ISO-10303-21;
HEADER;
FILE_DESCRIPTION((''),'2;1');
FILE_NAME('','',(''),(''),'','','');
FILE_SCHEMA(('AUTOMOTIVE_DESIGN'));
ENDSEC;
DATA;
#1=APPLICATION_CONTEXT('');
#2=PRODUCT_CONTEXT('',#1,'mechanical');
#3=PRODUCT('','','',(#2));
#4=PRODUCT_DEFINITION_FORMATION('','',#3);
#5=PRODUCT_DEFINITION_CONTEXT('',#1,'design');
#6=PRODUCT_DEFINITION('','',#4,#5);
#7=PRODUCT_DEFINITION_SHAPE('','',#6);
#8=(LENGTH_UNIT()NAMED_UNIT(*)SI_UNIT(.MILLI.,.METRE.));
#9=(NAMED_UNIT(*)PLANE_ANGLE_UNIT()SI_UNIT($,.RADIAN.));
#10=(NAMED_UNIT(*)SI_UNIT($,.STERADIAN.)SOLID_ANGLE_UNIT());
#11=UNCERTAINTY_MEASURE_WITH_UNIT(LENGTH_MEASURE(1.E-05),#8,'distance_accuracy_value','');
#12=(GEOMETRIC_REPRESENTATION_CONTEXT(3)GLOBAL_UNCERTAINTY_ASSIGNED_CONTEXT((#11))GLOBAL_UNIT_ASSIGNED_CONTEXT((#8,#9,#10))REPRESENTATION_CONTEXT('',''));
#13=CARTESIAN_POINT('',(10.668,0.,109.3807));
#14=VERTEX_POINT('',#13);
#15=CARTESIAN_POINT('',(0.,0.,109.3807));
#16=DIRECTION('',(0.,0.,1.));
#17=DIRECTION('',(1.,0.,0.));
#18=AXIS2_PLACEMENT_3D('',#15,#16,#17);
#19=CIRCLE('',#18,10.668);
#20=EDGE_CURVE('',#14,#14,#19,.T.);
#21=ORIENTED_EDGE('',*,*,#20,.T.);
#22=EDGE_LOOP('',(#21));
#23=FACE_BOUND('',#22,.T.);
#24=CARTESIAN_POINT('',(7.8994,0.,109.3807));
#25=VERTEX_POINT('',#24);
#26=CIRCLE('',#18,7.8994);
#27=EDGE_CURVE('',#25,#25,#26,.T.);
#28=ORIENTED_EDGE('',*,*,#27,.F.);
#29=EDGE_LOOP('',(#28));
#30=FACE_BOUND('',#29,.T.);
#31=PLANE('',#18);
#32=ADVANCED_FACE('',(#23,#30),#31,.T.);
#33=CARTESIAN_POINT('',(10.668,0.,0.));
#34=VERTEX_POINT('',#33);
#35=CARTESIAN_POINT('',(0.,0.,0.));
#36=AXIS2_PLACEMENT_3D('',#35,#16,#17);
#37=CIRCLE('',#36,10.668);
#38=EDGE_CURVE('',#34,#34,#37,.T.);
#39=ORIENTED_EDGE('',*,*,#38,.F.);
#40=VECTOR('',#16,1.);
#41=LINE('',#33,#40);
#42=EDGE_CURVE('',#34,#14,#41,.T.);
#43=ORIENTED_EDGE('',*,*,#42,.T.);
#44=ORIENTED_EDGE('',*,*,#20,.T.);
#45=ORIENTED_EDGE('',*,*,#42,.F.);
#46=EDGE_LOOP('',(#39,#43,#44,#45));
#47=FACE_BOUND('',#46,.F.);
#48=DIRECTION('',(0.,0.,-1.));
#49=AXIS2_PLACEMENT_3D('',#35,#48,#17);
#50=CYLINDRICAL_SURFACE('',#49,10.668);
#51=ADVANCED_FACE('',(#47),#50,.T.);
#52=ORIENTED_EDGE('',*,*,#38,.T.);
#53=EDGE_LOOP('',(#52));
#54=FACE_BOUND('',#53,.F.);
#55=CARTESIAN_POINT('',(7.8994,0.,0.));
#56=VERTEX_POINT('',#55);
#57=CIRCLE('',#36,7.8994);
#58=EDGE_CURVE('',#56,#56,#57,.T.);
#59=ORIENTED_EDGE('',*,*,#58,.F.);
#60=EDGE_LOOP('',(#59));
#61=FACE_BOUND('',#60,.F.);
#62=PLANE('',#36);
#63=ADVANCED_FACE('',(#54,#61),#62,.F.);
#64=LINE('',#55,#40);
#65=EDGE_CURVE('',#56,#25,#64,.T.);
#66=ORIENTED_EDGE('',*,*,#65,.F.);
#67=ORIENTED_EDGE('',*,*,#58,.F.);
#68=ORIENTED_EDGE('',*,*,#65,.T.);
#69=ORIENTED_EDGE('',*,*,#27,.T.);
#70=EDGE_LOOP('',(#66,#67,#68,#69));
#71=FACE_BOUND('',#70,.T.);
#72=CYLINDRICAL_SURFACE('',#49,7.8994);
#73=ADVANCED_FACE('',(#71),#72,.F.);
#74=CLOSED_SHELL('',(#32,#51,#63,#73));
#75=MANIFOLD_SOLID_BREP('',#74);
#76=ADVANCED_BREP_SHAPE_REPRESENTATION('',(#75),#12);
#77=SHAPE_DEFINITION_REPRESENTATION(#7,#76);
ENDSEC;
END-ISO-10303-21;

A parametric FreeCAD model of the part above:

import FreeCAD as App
import Part
import Sketcher
Q = App.Units.Quantity

doc = App.newDocument("Part")
params = doc.addObject("Spreadsheet::Sheet", "Params")
for row, (alias, value) in enumerate([
    ("sketch1_diameter", "0.84 in"),
    ("sketch1_diameter2", "0.622 in"),
    ("pad1_length", "109.3807 mm"),
], start=1):
    params.set(f"A{row}", alias)
    params.set(f"B{row}", "=" + value)
    params.setAlias(f"B{row}", alias)

body = doc.addObject("PartDesign::Body", "Body")

# Sketch on XY plane
sketch1 = doc.addObject("Sketcher::SketchObject", "Sketch")
body.addObject(sketch1)
sketch1.AttachmentSupport = (doc.XY_Plane, [""])
sketch1.MapMode = "FlatFace"
sketch1.addGeometry([
    Part.Circle(App.Vector(0, 0, 0), App.Vector(0, 0, 1), 11),
    Part.Circle(App.Vector(0, 0, 0), App.Vector(0, 0, 1), 8),
], False)
sketch1.addConstraint([
    Sketcher.Constraint("Coincident", 0, 3, -1, 1),
    Sketcher.Constraint("Coincident", 1, 3, -1, 1),
    Sketcher.Constraint("Diameter", 0, Q("0.84 in")),
    Sketcher.Constraint("Diameter", 1, Q("0.622 in")),
])
sketch1.setExpression("Constraints[2]", "Params.sketch1_diameter")
sketch1.setExpression("Constraints[3]", "Params.sketch1_diameter2")
pad1 = doc.addObject("PartDesign::Pad", "Pad")
body.addObject(pad1)
pad1.Profile = sketch1
pad1.setExpression("Length", "Params.pad1_length")

doc.recompute()
